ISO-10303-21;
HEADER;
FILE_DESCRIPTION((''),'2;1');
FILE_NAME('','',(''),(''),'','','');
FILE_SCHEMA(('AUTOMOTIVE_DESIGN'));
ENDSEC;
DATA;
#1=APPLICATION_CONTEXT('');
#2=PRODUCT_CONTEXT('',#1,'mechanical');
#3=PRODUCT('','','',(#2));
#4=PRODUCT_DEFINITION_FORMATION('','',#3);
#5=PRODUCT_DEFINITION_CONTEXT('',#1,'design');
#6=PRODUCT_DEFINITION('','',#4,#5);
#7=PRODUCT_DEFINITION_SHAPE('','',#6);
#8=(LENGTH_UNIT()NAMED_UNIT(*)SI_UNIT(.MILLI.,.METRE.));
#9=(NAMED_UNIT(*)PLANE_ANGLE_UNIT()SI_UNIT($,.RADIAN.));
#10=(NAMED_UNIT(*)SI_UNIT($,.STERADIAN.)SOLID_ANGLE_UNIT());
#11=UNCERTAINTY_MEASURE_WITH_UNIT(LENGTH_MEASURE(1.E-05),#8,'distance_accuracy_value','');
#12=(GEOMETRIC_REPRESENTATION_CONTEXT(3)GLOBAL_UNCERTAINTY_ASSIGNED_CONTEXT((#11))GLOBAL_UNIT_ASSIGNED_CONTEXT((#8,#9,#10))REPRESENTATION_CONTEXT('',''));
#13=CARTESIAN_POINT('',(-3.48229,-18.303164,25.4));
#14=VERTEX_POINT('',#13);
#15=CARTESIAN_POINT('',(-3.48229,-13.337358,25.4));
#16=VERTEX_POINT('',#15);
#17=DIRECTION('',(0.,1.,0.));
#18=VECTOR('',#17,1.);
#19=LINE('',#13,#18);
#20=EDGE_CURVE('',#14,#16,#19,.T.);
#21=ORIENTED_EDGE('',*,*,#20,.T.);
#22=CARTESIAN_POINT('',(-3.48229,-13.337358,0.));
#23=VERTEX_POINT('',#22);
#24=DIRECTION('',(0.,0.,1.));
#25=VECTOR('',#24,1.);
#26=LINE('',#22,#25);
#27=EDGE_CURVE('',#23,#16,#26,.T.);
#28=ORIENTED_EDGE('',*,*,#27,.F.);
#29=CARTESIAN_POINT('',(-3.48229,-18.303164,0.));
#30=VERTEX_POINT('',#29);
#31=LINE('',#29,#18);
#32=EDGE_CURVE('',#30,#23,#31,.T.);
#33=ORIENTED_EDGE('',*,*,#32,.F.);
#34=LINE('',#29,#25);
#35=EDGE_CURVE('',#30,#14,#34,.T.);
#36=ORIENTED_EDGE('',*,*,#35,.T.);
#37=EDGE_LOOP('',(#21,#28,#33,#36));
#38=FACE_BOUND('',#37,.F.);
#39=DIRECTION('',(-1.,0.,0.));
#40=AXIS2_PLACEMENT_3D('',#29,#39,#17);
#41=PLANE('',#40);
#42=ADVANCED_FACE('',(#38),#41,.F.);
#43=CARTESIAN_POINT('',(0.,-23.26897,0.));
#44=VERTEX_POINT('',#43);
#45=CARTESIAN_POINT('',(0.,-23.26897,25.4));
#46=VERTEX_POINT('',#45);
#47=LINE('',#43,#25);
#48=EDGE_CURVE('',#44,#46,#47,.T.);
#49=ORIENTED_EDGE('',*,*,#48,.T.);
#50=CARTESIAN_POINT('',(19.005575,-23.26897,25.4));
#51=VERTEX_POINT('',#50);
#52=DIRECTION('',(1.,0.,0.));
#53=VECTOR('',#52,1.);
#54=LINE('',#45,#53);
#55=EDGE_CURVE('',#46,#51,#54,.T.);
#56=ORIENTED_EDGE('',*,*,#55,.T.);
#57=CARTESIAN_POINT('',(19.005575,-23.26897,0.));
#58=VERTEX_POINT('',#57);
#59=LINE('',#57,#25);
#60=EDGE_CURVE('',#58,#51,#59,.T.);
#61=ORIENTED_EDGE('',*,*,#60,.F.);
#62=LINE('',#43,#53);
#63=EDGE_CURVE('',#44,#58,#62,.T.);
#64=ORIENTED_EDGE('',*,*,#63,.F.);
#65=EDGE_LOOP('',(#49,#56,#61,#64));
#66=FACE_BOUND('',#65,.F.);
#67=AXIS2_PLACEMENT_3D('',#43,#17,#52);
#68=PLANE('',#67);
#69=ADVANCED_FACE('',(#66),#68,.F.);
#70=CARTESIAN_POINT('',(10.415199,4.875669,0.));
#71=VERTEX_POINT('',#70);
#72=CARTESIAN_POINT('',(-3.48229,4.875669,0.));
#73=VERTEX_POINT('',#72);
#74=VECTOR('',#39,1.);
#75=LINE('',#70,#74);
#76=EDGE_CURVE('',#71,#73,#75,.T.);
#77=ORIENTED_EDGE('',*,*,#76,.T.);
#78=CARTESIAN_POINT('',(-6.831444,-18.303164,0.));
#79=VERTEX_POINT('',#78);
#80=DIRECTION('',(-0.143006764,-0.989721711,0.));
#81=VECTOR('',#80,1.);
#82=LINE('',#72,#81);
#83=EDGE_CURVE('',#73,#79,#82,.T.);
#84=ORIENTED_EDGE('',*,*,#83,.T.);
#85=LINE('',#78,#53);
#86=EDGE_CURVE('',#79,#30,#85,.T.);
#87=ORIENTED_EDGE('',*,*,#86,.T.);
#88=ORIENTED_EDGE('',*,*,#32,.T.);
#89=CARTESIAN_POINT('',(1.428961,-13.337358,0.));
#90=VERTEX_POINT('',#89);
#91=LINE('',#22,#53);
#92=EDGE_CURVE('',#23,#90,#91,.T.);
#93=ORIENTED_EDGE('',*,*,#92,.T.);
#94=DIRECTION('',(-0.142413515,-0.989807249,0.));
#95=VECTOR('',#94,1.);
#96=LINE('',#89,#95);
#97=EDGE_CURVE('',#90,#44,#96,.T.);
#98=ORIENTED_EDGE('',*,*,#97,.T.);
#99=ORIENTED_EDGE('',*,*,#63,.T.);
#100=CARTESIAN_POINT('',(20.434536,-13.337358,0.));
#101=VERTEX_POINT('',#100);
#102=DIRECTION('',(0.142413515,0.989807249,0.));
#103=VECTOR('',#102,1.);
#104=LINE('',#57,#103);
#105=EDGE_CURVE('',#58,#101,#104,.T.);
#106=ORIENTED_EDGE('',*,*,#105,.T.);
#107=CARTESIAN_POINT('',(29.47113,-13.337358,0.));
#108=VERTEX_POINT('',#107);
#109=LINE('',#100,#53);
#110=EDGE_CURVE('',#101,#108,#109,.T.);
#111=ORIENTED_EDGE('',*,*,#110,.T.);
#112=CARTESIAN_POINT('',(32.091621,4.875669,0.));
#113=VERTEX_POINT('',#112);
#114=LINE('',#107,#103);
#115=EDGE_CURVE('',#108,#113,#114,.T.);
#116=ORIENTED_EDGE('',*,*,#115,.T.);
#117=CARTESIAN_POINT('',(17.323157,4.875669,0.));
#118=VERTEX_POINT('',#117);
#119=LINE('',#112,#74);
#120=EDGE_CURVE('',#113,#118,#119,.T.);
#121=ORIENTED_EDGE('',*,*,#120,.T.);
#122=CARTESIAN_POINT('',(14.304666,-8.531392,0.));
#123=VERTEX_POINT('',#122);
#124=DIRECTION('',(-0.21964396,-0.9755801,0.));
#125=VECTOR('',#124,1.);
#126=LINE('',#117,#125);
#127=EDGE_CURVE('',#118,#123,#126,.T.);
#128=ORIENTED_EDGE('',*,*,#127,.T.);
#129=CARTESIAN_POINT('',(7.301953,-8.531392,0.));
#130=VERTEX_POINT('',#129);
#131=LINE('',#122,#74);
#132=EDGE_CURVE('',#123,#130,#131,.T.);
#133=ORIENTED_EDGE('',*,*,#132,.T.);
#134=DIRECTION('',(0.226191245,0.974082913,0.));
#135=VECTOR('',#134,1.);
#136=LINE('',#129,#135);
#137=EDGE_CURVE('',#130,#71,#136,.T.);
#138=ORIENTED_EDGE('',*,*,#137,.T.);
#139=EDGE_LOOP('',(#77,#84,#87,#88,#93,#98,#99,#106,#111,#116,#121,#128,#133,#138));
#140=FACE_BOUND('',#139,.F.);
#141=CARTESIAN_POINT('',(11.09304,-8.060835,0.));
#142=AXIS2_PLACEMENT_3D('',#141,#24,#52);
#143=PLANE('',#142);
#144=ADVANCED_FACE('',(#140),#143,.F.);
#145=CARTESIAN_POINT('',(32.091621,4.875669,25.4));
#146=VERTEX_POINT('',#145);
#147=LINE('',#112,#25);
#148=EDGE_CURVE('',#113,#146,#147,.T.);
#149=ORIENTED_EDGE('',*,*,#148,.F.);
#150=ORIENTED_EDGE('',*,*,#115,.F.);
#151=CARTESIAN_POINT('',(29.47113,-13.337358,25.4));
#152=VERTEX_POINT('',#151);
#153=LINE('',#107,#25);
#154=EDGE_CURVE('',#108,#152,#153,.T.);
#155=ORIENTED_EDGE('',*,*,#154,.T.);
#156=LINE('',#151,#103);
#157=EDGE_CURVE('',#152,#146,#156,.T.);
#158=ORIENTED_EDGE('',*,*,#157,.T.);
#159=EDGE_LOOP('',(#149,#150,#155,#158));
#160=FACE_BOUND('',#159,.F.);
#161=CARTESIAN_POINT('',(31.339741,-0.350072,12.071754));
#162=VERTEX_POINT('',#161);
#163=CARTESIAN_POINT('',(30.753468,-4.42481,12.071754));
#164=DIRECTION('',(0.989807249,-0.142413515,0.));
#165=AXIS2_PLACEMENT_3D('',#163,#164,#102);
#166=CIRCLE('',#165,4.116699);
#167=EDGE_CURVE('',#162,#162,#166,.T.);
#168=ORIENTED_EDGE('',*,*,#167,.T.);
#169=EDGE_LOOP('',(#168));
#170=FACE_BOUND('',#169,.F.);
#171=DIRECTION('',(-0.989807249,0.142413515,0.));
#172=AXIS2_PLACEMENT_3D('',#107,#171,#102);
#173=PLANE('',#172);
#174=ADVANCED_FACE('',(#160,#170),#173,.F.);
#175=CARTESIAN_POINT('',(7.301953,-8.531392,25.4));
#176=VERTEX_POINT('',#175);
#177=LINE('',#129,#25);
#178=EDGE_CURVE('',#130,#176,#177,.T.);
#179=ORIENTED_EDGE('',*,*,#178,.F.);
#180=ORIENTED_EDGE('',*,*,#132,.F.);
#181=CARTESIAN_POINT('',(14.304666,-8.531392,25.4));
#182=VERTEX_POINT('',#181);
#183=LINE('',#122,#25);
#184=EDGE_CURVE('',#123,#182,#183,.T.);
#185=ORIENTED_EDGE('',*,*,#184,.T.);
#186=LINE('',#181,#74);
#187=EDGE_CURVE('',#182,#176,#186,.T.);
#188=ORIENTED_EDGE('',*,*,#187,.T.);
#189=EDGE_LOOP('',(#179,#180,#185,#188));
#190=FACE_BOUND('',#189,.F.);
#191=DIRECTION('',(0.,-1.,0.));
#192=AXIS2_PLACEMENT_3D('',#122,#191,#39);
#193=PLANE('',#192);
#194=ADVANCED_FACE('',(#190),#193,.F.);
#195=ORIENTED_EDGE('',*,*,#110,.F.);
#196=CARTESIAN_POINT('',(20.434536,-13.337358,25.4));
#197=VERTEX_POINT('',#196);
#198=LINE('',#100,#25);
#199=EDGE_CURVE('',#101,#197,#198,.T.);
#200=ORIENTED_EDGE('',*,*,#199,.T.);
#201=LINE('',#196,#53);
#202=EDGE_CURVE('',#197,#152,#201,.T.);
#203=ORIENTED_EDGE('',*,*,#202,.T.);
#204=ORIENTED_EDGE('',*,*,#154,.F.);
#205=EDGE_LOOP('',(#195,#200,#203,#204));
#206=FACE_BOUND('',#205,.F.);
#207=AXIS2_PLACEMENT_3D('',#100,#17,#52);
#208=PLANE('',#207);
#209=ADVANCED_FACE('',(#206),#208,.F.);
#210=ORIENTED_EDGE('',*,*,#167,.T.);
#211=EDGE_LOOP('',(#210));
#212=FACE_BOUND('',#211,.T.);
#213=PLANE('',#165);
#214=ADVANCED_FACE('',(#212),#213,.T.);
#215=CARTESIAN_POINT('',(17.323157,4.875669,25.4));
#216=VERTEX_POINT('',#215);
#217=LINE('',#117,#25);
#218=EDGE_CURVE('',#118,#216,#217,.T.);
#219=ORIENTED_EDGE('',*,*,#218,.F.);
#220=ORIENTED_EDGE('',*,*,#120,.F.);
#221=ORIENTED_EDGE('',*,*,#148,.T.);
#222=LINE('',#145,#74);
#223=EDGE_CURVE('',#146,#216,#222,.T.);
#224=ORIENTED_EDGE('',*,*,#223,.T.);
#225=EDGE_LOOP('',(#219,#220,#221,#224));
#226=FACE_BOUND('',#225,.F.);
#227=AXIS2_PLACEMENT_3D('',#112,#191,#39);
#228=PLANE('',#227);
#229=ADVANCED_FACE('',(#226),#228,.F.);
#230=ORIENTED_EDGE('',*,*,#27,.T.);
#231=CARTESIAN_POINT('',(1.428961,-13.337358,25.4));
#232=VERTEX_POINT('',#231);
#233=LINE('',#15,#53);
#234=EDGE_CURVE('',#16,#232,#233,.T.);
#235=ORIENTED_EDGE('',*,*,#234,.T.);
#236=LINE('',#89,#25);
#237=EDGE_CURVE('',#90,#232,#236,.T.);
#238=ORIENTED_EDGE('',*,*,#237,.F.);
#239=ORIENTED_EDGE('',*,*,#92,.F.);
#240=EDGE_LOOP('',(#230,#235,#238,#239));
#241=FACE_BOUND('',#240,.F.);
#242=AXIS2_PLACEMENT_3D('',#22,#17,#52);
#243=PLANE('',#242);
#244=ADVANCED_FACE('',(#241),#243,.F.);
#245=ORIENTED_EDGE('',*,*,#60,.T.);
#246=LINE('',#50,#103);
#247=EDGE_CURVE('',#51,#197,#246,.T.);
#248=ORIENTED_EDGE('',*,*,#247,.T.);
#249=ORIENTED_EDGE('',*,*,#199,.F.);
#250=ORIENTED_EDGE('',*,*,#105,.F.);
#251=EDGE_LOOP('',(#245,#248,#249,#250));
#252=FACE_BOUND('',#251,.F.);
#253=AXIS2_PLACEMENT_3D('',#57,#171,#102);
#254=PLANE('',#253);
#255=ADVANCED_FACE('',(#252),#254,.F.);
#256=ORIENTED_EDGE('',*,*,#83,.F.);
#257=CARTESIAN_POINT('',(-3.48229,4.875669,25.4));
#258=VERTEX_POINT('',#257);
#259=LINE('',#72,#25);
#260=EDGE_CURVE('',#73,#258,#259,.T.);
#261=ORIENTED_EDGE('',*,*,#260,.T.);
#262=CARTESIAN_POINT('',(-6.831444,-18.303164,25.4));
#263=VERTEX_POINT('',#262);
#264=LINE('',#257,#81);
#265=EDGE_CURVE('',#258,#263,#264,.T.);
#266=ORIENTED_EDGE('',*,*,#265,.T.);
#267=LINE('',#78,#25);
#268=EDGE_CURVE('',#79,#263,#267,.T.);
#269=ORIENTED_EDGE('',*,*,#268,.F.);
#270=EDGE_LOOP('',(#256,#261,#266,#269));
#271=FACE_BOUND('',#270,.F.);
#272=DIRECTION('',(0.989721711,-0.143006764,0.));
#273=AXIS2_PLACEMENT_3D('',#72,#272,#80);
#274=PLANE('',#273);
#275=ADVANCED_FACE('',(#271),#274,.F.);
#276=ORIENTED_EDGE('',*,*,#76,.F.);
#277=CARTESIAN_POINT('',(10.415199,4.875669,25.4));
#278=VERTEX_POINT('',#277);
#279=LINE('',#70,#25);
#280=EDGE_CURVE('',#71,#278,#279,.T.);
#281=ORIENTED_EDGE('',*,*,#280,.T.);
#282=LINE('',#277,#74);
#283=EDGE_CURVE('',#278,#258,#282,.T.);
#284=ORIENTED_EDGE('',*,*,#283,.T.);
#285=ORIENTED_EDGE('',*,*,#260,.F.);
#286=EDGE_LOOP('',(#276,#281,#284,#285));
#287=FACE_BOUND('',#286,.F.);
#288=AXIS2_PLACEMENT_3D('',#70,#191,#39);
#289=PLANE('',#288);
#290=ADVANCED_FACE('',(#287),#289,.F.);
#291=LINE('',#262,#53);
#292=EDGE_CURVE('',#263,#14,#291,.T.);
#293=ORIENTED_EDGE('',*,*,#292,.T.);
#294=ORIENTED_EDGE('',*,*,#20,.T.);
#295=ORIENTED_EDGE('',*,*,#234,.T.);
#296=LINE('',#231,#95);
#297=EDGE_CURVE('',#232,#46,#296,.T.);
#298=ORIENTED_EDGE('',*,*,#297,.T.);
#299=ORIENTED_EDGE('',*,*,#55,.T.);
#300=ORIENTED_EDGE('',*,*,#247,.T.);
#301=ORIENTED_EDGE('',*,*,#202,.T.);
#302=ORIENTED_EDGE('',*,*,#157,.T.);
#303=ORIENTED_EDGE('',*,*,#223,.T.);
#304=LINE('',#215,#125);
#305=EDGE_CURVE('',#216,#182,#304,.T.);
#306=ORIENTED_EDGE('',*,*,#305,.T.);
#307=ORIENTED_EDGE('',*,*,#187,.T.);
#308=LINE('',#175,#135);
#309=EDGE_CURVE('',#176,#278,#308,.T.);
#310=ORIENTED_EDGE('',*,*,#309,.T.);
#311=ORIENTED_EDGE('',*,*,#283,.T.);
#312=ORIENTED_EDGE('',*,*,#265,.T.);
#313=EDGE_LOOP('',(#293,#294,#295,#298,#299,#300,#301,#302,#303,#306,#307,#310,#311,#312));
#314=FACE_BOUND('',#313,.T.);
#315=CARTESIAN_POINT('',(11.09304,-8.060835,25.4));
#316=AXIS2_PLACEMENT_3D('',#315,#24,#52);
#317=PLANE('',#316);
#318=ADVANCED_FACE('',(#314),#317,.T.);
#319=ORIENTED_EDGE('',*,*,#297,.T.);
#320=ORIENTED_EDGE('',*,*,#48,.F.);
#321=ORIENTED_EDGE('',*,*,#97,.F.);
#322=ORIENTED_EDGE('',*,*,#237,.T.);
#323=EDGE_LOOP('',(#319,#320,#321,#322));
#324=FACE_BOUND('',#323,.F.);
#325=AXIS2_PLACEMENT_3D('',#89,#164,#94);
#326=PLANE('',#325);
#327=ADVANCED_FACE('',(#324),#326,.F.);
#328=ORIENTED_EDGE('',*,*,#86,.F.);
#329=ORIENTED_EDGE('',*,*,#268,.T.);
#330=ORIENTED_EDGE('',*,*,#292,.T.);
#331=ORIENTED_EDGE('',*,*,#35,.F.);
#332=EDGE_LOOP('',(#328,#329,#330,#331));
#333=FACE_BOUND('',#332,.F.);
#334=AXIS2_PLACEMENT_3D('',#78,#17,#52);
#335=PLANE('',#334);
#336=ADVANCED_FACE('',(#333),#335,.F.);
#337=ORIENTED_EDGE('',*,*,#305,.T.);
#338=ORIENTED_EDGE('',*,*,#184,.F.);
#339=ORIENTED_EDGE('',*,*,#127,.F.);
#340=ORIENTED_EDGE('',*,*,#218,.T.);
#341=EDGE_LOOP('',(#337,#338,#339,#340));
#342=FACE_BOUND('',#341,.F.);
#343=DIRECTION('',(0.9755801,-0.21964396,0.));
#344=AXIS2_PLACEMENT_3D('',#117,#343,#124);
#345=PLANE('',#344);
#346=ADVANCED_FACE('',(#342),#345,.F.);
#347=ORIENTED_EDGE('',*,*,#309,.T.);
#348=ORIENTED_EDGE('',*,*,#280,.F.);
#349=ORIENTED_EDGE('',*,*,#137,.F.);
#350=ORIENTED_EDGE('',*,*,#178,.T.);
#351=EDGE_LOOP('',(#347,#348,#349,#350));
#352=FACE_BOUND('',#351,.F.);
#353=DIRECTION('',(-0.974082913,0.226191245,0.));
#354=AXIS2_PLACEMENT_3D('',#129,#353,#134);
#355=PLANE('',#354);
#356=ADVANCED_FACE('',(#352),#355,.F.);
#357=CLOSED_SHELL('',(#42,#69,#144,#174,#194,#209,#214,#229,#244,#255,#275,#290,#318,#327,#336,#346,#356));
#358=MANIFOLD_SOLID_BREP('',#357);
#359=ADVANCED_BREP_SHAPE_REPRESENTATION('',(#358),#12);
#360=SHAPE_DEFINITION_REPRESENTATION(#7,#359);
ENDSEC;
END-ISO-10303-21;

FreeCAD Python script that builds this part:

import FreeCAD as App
import Part
import Sketcher

V = App.Vector
Q = App.Units.Quantity


def add_polygon(sketch, points):
    """Adds a closed chain of lines whose ends are joined by coincident constraints."""
    first, n = sketch.GeometryCount, len(points)
    for a, b in zip(points, points[1:] + points[:1]):
        sketch.addGeometry(Part.LineSegment(App.Vector(*a, 0), App.Vector(*b, 0)), False)
    for i in range(n):
        sketch.addConstraint(Sketcher.Constraint("Coincident", first + i, 2, first + (i + 1) % n, 1))

doc = App.newDocument("Part")
body = doc.addObject("PartDesign::Body", "Body")

# Sketch on XY plane
sketch1 = body.newObject("Sketcher::SketchObject", "Sketch")
sketch1.AttachmentSupport = (doc.getObject("XY_Plane"), [""])
sketch1.MapMode = "FlatFace"
add_polygon(sketch1, [(20.434536, -13.337358), (29.47113, -13.337358), (32.091621, 4.875669), (17.323157, 4.875669), (14.304666, -8.531392), (7.301953, -8.531392), (10.415199, 4.875669), (-3.48229, 4.875669), (-6.831444, -18.303164), (-3.48229, -18.303164), (-3.48229, -13.337358), (1.428961, -13.337358), (0, -23.26897), (19.005575, -23.26897)])  # lines 0-13
sketch1.addConstraint([
    Sketcher.Constraint("Horizontal", 0),
    Sketcher.Constraint("Horizontal", 2),
    Sketcher.Constraint("Horizontal", 4),
    Sketcher.Constraint("Horizontal", 6),
    Sketcher.Constraint("Horizontal", 8),
    Sketcher.Constraint("Vertical", 9),
    Sketcher.Constraint("Horizontal", 10),
    Sketcher.Constraint("Horizontal", 12),
    Sketcher.Constraint("PointOnObject", 11, 2, -2),
    Sketcher.Constraint("Parallel", 1, 11),
    Sketcher.Constraint("Parallel", 11, 13),
    Sketcher.Constraint("Horizontal", 2, 2, 5, 2),
    Sketcher.Constraint("Horizontal", 0, 2, 9, 2),
    Sketcher.Constraint("Vertical", 6, 2, 8, 2),
    Sketcher.Constraint("DistanceX", 6, 2, 6, 1, Q("13.897489 mm")),
    Sketcher.Constraint("DistanceX", 10, 1, 10, 2, Q("4.911251 mm")),
    Sketcher.Constraint("DistanceX", -1, 1, 5, 2, Q("10.415199 mm")),
    Sketcher.Constraint("DistanceX", 7, 2, 2, 2, Q("24.1546 mm")),
    Sketcher.Constraint("Distance", 1, Q("18.40058 mm")),
    Sketcher.Constraint("DistanceX", 0, 1, 0, 2, Q("9.036594 mm")),
    Sketcher.Constraint("DistanceX", 2, 2, 2, 1, Q("14.768464 mm")),
    Sketcher.Constraint("DistanceX", 4, 2, 4, 1, Q("7.002712 mm")),
    Sketcher.Constraint("DistanceX", 8, 1, 8, 2, Q("3.349153 mm")),
    Sketcher.Constraint("DistanceX", 12, 1, 12, 2, Q("19.005575 mm")),
    Sketcher.Constraint("DistanceY", 9, 1, 9, 2, Q("4.965806 mm")),
    Sketcher.Constraint("DistanceY", -1, 1, 1, 2, Q("4.875669 mm")),
    Sketcher.Constraint("DistanceY", 3, 2, -1, 1, Q("8.531392 mm")),
    Sketcher.Constraint("DistanceX", 3, 2, 2, 2, Q("3.018491 mm")),
])
pad1 = body.newObject("PartDesign::Pad", "Pad")
pad1.Profile = sketch1
pad1.Length = Q("1 in")

# Sketch on an angled plane
sketch2 = body.newObject("Sketcher::SketchObject", "Sketch001")
sketch2.Placement = App.Placement(V(30.753468, -4.42481, 0), App.Rotation(V(0.142413515, 0.989807249, 0), V(0, 0, 0.999999999), V(0.989807249, -0.142413515, 0), "ZXY"))
sketch2.addGeometry(Part.Circle(V(0, 12.071754, 0), V(0, 0, 1), 4.116699), False)
sketch2.addConstraint([
    Sketcher.Constraint("PointOnObject", 0, 3, -2),
    Sketcher.Constraint("Diameter", 0, Q("8.233399 mm")),
    Sketcher.Constraint("DistanceY", -1, 1, 0, 3, Q("12.071754 mm")),
])
pocket1 = body.newObject("PartDesign::Pocket", "Pocket")
pocket1.Profile = sketch2
pocket1.Length = Q("0.75 in")
pocket1.Reversed = True

doc.recompute()
